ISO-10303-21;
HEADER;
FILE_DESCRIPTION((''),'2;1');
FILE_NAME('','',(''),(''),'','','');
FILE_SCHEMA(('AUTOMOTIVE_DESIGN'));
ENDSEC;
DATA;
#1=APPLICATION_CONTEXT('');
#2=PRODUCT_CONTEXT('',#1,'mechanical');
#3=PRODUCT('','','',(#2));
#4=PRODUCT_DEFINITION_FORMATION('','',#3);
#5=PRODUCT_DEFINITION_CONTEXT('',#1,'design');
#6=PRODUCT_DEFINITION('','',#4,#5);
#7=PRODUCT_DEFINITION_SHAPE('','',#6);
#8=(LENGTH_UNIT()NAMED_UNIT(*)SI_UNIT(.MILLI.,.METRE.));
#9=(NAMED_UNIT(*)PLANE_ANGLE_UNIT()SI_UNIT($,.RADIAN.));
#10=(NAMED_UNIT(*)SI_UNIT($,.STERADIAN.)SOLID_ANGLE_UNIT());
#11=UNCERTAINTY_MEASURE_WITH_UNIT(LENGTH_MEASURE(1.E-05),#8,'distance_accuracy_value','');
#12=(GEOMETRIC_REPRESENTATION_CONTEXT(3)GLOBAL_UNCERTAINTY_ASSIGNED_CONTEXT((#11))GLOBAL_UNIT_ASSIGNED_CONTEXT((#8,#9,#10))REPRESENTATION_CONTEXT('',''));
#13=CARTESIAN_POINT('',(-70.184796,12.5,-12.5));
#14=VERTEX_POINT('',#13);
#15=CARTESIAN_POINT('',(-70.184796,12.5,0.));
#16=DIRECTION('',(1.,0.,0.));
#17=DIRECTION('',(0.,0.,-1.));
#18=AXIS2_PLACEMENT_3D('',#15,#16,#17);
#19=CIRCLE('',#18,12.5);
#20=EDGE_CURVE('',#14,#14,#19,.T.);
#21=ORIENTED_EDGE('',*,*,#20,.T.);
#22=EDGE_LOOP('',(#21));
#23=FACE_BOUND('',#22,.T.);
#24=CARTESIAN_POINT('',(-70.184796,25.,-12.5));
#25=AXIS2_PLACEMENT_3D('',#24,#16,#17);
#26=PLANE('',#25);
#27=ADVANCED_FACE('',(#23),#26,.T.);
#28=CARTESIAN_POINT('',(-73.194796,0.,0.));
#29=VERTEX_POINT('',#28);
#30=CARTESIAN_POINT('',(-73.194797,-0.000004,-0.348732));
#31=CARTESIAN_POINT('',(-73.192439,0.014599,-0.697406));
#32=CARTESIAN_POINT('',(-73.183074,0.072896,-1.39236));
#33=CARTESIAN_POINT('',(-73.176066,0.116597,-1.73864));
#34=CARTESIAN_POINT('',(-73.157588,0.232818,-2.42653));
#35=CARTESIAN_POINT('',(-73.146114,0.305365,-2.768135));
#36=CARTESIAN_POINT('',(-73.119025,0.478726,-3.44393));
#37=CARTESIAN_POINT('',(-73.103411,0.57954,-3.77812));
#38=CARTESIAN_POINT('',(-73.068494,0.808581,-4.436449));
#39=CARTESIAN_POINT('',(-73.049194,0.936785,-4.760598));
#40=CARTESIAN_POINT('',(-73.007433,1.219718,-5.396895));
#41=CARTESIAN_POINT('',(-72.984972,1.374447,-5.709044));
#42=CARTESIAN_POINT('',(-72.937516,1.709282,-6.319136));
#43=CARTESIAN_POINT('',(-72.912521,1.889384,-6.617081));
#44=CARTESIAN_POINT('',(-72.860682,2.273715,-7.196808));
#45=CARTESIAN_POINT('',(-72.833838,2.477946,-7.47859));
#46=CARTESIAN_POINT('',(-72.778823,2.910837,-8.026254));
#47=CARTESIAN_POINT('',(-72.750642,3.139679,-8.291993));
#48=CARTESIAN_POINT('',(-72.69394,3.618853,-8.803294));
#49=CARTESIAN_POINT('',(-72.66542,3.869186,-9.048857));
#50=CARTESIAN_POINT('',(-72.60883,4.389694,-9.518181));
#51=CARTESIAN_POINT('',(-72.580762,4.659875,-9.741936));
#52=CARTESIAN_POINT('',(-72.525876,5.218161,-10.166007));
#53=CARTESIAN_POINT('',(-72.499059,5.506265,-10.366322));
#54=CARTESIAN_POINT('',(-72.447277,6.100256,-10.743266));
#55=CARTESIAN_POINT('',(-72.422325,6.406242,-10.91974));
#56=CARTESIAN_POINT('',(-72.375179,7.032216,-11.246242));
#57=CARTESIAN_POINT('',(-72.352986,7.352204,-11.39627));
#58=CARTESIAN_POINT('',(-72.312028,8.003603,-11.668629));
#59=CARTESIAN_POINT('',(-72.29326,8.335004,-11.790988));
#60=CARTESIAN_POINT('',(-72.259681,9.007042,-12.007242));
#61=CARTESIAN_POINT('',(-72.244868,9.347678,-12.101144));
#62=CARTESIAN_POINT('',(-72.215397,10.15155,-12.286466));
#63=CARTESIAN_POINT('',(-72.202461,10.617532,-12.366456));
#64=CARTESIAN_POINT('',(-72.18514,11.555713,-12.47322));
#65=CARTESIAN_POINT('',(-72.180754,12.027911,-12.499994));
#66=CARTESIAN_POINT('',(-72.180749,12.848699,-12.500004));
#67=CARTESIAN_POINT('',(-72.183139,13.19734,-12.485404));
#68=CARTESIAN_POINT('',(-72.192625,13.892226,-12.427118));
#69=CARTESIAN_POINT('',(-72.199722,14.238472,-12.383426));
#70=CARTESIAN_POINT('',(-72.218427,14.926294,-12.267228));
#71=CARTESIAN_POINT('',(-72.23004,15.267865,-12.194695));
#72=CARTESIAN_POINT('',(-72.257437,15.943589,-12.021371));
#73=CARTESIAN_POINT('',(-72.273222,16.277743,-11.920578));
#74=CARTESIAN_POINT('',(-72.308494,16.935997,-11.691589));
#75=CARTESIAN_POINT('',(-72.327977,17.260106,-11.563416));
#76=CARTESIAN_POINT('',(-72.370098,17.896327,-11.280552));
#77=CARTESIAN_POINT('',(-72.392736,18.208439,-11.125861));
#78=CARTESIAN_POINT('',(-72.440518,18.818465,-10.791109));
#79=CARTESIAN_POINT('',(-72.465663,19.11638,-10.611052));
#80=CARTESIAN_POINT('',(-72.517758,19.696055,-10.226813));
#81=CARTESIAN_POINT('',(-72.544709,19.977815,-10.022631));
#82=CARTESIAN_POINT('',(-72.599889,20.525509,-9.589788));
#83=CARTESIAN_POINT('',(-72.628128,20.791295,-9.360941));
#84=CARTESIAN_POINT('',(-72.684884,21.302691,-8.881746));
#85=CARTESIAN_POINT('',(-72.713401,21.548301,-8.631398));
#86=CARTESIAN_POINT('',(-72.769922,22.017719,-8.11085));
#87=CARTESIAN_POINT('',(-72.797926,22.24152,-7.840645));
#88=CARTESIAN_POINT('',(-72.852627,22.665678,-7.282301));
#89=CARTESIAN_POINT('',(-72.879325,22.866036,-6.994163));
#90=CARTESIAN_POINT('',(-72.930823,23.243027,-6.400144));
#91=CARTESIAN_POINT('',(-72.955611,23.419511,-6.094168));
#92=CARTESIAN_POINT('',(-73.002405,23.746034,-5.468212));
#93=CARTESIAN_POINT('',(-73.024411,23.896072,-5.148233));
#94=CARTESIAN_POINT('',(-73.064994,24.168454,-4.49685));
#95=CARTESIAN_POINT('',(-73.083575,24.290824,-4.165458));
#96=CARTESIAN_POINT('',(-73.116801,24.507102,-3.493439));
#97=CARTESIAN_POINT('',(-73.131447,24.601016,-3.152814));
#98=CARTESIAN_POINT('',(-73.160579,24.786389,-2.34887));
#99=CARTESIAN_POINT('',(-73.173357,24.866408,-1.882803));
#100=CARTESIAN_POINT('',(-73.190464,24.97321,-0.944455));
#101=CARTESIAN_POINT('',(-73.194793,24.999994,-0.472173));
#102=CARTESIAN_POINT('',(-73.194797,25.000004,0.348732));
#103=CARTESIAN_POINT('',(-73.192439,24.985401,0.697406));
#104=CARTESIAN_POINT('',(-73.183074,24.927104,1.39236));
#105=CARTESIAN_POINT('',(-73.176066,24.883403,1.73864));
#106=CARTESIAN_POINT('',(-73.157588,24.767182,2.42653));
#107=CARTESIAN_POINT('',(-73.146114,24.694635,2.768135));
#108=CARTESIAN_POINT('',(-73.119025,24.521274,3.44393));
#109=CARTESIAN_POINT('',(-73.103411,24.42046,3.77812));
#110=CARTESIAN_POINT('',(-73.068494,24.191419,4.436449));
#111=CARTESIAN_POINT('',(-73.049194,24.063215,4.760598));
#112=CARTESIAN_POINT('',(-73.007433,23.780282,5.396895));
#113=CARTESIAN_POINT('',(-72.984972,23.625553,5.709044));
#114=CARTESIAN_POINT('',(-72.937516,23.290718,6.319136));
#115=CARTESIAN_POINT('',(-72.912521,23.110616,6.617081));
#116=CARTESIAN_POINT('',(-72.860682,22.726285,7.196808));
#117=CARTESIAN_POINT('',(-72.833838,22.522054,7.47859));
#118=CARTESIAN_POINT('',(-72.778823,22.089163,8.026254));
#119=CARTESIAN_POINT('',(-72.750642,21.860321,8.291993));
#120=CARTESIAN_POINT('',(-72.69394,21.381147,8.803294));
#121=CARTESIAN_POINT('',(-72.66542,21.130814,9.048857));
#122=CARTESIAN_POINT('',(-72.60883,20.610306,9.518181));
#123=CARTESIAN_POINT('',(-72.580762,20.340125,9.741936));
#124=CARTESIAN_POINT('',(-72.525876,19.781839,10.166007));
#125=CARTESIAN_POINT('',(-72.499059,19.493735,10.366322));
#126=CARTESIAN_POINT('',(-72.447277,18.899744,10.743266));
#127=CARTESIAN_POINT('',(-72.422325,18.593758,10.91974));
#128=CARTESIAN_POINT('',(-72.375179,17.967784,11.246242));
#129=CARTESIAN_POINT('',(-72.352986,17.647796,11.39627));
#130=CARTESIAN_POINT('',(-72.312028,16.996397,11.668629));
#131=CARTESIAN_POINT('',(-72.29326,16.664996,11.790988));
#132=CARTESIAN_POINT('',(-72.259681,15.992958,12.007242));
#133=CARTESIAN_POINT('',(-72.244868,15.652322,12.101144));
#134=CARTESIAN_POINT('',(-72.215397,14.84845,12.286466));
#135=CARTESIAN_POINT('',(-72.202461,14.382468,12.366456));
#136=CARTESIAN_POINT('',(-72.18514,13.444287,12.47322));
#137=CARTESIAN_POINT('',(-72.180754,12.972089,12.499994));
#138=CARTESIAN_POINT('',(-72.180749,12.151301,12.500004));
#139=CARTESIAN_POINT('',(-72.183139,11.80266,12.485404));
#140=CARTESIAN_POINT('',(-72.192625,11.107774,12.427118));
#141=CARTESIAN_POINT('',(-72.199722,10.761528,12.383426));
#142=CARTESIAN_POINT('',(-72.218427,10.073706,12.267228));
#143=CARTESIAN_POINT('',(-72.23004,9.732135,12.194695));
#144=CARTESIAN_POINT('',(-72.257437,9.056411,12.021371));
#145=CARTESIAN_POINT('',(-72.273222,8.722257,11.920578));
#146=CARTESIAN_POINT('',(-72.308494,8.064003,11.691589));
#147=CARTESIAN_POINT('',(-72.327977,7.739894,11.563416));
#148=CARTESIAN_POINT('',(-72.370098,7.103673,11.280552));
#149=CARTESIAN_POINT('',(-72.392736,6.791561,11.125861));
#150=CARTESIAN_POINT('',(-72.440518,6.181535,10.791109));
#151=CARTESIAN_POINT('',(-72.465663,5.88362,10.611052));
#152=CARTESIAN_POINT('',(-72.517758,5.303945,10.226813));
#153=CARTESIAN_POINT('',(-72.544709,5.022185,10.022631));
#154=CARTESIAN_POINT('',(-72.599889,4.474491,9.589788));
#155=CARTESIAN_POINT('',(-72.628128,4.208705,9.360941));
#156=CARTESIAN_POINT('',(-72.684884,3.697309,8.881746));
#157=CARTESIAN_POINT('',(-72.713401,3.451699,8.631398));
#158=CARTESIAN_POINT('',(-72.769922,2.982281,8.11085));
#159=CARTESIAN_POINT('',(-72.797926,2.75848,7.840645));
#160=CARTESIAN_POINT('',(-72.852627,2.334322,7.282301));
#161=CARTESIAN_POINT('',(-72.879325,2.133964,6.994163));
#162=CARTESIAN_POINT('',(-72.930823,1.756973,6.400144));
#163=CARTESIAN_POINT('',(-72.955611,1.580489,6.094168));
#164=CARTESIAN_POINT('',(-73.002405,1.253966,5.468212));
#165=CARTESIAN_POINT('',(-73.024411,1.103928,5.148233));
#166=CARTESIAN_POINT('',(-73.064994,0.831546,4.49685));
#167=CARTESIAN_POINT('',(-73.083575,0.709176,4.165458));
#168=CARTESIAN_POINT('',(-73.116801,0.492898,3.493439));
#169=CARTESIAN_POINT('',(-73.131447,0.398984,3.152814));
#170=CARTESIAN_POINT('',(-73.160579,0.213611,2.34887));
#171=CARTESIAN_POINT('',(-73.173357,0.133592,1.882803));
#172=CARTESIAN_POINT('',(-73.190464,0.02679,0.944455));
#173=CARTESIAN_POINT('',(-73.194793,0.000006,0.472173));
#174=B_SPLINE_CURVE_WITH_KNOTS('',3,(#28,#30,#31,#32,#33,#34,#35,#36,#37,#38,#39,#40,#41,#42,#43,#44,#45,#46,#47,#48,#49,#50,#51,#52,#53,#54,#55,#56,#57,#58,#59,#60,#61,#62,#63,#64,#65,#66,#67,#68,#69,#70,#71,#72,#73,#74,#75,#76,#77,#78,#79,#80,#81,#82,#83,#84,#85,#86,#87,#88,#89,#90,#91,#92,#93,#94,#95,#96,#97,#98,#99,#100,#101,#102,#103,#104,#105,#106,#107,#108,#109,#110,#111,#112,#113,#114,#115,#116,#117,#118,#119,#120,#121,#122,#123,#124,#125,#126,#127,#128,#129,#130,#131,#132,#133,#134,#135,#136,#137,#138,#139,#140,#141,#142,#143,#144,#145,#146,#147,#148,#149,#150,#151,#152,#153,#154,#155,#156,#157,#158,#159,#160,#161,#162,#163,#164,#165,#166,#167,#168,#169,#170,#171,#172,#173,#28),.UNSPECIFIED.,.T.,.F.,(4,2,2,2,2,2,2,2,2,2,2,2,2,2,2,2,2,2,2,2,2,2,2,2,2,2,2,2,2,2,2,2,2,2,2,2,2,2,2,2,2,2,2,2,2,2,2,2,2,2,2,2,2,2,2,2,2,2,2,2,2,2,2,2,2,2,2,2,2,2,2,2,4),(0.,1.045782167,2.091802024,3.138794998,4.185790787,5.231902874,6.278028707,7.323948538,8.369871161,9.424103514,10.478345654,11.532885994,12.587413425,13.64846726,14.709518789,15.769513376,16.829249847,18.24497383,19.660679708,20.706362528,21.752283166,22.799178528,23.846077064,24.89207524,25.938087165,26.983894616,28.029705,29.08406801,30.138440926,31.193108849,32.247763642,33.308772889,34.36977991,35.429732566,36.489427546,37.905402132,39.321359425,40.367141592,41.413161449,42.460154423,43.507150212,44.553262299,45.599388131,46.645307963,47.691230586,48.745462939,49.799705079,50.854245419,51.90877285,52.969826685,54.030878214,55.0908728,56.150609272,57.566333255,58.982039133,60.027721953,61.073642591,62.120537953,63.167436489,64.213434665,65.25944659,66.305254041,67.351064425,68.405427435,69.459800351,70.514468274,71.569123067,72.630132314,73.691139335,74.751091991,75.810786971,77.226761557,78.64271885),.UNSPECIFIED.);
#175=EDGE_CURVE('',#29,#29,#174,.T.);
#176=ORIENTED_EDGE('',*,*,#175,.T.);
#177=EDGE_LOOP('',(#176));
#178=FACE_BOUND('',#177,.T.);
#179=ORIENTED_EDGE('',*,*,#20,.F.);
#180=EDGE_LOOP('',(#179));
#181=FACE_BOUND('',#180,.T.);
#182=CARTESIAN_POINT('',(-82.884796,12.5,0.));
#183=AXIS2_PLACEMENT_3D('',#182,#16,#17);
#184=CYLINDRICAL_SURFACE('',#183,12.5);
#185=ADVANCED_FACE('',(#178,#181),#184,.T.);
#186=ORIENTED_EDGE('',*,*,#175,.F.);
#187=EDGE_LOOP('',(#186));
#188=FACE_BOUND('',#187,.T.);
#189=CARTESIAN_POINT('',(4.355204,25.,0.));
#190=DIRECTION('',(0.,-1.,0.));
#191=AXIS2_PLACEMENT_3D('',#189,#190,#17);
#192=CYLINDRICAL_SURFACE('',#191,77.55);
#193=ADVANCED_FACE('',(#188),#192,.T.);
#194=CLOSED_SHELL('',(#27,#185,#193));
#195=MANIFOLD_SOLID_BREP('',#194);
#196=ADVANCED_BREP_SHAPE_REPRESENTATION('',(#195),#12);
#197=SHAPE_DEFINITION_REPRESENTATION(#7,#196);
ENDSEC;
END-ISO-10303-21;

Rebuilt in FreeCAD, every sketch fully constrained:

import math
import FreeCAD as App
import Part
import Sketcher

V = App.Vector

doc = App.newDocument("Part")
body = doc.addObject("PartDesign::Body", "Body")

# Sketch on XZ plane
sketch1 = doc.addObject("Sketcher::SketchObject", "Sketch")
body.addObject(sketch1)
sketch1.AttachmentSupport = (doc.XZ_Plane, [""])
sketch1.MapMode = "FlatFace"
sketch1.addGeometry(Part.LineSegment(V(-70.2, -12.5, 0), V(-72.2, -12.5, 0)), False)
sketch1.addGeometry(Part.ArcOfCircle(Part.Circle(V(4.4, 0, 0), V(0, 0, 1), 77.6), math.radians(170.72), math.radians(189.28)), False)
sketch1.addGeometry(Part.LineSegment(V(-72.2, 12.5, 0), V(-70.2, 12.5, 0)), False)
sketch1.addGeometry(Part.LineSegment(V(-70.2, 12.5, 0), V(-70.2, -12.5, 0)), False)
sketch1.addConstraint(Sketcher.Constraint("Coincident", 0, 2, 1, 2))
sketch1.addConstraint(Sketcher.Constraint("Coincident", 1, 1, 2, 1))
sketch1.addConstraint(Sketcher.Constraint("Coincident", 2, 2, 3, 1))
sketch1.addConstraint(Sketcher.Constraint("Coincident", 3, 2, 0, 1))
sketch1.addConstraint(Sketcher.Constraint("Horizontal", 0))
sketch1.addConstraint(Sketcher.Constraint("Horizontal", 2))
sketch1.addConstraint(Sketcher.Constraint("Vertical", 3))
sketch1.addConstraint(Sketcher.Constraint("Symmetric", 0, 2, 1, 1, -1))
sketch1.addConstraint(Sketcher.Constraint("DistanceY", 3, 2, 3, 1, 25.0))
sketch1.addConstraint(Sketcher.Constraint("Radius", 1, 77.55))
sketch1.addConstraint(Sketcher.Constraint("DistanceX", 2, 2, 1, 3, 74.54))
sketch1.addConstraint(Sketcher.Constraint("DistanceX", 0, 2, -1, 1, 72.180751))
pad1 = doc.addObject("PartDesign::Pad", "Pad")
body.addObject(pad1)
pad1.Profile = sketch1
pad1.Length = 25
pad1.Reversed = True

# Sketch on YZ plane
sketch2 = doc.addObject("Sketcher::SketchObject", "Sketch001")
body.addObject(sketch2)
sketch2.AttachmentSupport = (doc.YZ_Plane, [""])
sketch2.MapMode = "FlatFace"
sketch2.AttachmentOffset = App.Placement(V(0, 0, -70.184796), App.Rotation())
sketch2.addGeometry(Part.LineSegment(V(25, 12, 0), V(12, 12, 0)), False)
sketch2.addGeometry(Part.ArcOfCircle(Part.Circle(V(13, 0, 0), V(0, 0, 1), 12), math.radians(0), math.radians(90)), False)
sketch2.addGeometry(Part.LineSegment(V(25, 0, 0), V(25, 12, 0)), False)
sketch2.addGeometry(Part.ArcOfCircle(Part.Circle(V(13, 0, 0), V(0, 0, 1), 12), math.radians(-90), math.radians(0)), False)
sketch2.addGeometry(Part.LineSegment(V(12, -12, 0), V(25, -12, 0)), False)
sketch2.addGeometry(Part.LineSegment(V(25, -12, 0), V(25, 0, 0)), False)
sketch2.addGeometry(Part.ArcOfCircle(Part.Circle(V(12, 0, 0), V(0, 0, 1), 12), math.radians(180), math.radians(270)), False)
sketch2.addGeometry(Part.LineSegment(V(0, 0, 0), V(0, -12, 0)), False)
sketch2.addGeometry(Part.LineSegment(V(0, -12, 0), V(12, -12, 0)), False)
sketch2.addGeometry(Part.LineSegment(V(12, 12, 0), V(0, 12, 0)), False)
sketch2.addGeometry(Part.LineSegment(V(0, 12, 0), V(0, 0, 0)), False)
sketch2.addGeometry(Part.ArcOfCircle(Part.Circle(V(12, 0, 0), V(0, 0, 1), 12), math.radians(90), math.radians(180)), False)
sketch2.addConstraint(Sketcher.Constraint("Tangent", 0, 2, 1, 2))
sketch2.addConstraint(Sketcher.Constraint("Tangent", 1, 1, 2, 1))
sketch2.addConstraint(Sketcher.Constraint("Coincident", 2, 2, 0, 1))
sketch2.addConstraint(Sketcher.Constraint("Tangent", 3, 1, 4, 1))
sketch2.addConstraint(Sketcher.Constraint("Coincident", 4, 2, 5, 1))
sketch2.addConstraint(Sketcher.Constraint("Tangent", 5, 2, 3, 2))
sketch2.addConstraint(Sketcher.Constraint("Tangent", 6, 1, 7, 1))
sketch2.addConstraint(Sketcher.Constraint("Coincident", 7, 2, 8, 1))
sketch2.addConstraint(Sketcher.Constraint("Tangent", 8, 2, 6, 2))
sketch2.addConstraint(Sketcher.Constraint("Coincident", 9, 2, 10, 1))
sketch2.addConstraint(Sketcher.Constraint("Tangent", 10, 2, 11, 2))
sketch2.addConstraint(Sketcher.Constraint("Tangent", 11, 1, 9, 1))
sketch2.addConstraint(Sketcher.Constraint("Horizontal", 0))
sketch2.addConstraint(Sketcher.Constraint("Vertical", 2))
sketch2.addConstraint(Sketcher.Constraint("Horizontal", 4))
sketch2.addConstraint(Sketcher.Constraint("Vertical", 5))
sketch2.addConstraint(Sketcher.Constraint("Vertical", 7))
sketch2.addConstraint(Sketcher.Constraint("Horizontal", 8))
sketch2.addConstraint(Sketcher.Constraint("Horizontal", 9))
sketch2.addConstraint(Sketcher.Constraint("Vertical", 10))
sketch2.addConstraint(Sketcher.Constraint("Coincident", 6, 1, -1, 1))
sketch2.addConstraint(Sketcher.Constraint("Coincident", 10, 2, -1, 1))
sketch2.addConstraint(Sketcher.Constraint("Coincident", 3, 3, 1, 3))
sketch2.addConstraint(Sketcher.Constraint("Coincident", 6, 3, 1, 3))
sketch2.addConstraint(Sketcher.Constraint("Coincident", 11, 1, 0, 2))
sketch2.addConstraint(Sketcher.Constraint("Equal", 1, 3))
sketch2.addConstraint(Sketcher.Constraint("Radius", 1, 12.5))
pocket1 = doc.addObject("PartDesign::Pocket", "Pocket")
body.addObject(pocket1)
pocket1.Profile = sketch2
pocket1.Length = 12.7

doc.recompute()
